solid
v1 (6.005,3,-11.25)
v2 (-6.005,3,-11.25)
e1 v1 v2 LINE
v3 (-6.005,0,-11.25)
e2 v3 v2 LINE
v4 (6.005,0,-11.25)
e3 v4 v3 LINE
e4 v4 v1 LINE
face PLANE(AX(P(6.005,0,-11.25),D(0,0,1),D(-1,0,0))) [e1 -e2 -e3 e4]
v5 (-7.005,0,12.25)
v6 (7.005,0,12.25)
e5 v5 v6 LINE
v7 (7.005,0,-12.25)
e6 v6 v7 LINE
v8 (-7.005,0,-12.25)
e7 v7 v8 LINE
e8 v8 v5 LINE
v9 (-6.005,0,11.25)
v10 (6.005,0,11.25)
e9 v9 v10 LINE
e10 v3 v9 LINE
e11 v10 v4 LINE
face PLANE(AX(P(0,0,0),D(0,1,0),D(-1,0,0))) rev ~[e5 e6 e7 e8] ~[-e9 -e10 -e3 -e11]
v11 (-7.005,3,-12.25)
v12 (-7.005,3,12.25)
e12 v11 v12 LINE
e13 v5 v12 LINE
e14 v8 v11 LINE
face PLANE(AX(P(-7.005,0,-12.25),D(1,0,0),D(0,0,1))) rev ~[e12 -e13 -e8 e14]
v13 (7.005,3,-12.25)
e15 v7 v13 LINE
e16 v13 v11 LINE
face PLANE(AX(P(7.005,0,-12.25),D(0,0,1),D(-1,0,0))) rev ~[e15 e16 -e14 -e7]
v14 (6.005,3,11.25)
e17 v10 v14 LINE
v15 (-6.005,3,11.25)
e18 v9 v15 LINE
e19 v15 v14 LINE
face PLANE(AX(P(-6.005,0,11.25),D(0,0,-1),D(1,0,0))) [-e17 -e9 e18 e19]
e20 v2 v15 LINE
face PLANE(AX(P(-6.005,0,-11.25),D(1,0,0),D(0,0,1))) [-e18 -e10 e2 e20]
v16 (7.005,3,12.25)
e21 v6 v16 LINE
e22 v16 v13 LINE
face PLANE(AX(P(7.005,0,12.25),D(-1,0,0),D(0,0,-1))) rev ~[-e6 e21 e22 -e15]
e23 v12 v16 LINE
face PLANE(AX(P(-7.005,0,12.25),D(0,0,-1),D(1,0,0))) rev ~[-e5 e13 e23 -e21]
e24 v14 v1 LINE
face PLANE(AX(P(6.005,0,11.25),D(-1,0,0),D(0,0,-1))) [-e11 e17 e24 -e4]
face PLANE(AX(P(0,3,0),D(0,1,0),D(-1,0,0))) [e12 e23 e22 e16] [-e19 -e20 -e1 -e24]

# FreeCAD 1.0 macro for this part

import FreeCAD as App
import Part
import Sketcher

V = App.Vector
Q = App.Units.Quantity


def add_polygon(sketch, points):
    """Adds a closed chain of lines whose ends are joined by coincident constraints."""
    first, n = sketch.GeometryCount, len(points)
    for a, b in zip(points, points[1:] + points[:1]):
        sketch.addGeometry(Part.LineSegment(App.Vector(*a, 0), App.Vector(*b, 0)), False)
    for i in range(n):
        sketch.addConstraint(Sketcher.Constraint("Coincident", first + i, 2, first + (i + 1) % n, 1))

doc = App.newDocument("Part")
body = doc.addObject("PartDesign::Body", "Body")

sketch1 = doc.addObject("Sketcher::SketchObject", "Sketch")
body.addObject(sketch1)
sketch1.AttachmentSupport = (doc.XZ_Plane, [""])
sketch1.MapMode = "FlatFace"
add_polygon(sketch1, [(7.005, 12.25), (7.005, -12.25), (-7.005, -12.25), (-7.005, 12.25)])
add_polygon(sketch1, [(-6.005, -11.25), (6.005, -11.25), (6.005, 11.25), (-6.005, 11.25)])
sketch1.addConstraint([
    Sketcher.Constraint("Vertical", 0),
    Sketcher.Constraint("Horizontal", 1),
    Sketcher.Constraint("Vertical", 2),
    Sketcher.Constraint("Horizontal", 3),
    Sketcher.Constraint("Horizontal", 4),
    Sketcher.Constraint("Vertical", 5),
    Sketcher.Constraint("Horizontal", 6),
    Sketcher.Constraint("Vertical", 7),
    Sketcher.Constraint("Symmetric", 0, 2, 2, 2, -1, 1),
    Sketcher.Constraint("Symmetric", 4, 2, 6, 2, -1, 1),
    Sketcher.Constraint("DistanceY", 0, 2, 0, 1, Q("24.5 mm")),
    Sketcher.Constraint("DistanceY", 5, 1, 5, 2, Q("22.5 mm")),
    Sketcher.Constraint("DistanceX", 1, 2, 1, 1, Q("14.01 mm")),
    Sketcher.Constraint("DistanceX", 4, 1, 4, 2, Q("12.01 mm")),
])
pad1 = doc.addObject("PartDesign::Pad", "Pad")
body.addObject(pad1)
pad1.Profile = sketch1
pad1.Length = 3
pad1.Reversed = True

doc.recompute()
